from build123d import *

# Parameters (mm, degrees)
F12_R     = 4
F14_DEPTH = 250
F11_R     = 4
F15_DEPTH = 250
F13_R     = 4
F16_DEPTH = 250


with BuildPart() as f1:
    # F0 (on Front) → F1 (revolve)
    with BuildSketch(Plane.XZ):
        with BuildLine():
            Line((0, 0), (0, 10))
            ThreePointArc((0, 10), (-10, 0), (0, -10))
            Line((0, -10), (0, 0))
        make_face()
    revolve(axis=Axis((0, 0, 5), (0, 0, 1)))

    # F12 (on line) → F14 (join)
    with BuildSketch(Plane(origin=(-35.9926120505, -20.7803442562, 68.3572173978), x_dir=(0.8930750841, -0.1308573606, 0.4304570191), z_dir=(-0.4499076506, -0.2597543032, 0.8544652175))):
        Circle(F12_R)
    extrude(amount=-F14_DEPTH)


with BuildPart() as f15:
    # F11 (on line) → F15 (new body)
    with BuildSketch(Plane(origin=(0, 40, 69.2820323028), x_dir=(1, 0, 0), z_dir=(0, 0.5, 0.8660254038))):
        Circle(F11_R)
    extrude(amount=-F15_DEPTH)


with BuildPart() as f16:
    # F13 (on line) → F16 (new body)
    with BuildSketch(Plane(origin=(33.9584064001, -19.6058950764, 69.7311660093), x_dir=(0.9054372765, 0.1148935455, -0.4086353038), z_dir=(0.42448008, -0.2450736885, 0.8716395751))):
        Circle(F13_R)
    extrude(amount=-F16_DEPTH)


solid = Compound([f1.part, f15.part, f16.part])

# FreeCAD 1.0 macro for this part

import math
import FreeCAD as App
import Part
import Sketcher

V = App.Vector

doc = App.newDocument("Part")
body = doc.addObject("PartDesign::Body", "Body")

# Sketch on XZ plane
sketch1 = doc.addObject("Sketcher::SketchObject", "Sketch")
body.addObject(sketch1)
sketch1.AttachmentSupport = (doc.XZ_Plane, [""])
sketch1.MapMode = "FlatFace"
sketch1.addGeometry([
    Part.ArcOfCircle(Part.Circle(V(0, 0, 0), V(0, 0, 1), 10), math.radians(90), math.radians(270)),
    Part.LineSegment(V(0, -10, 0), V(0, 10, 0)),
], False)
sketch1.addConstraint([
    Sketcher.Constraint("Coincident", 0, 1, 1, 2),
    Sketcher.Constraint("Coincident", 1, 1, 0, 2),
    Sketcher.Constraint("Vertical", 1),
    Sketcher.Constraint("Coincident", 0, 3, -1, 1),
    Sketcher.Constraint("PointOnObject", 0, 1, -2),
    Sketcher.Constraint("Radius", 0, 10.0),
])
revolution = doc.addObject("PartDesign::Revolution", "Revolution")
body.addObject(revolution)
revolution.Profile = sketch1
revolution.ReferenceAxis = (sketch1, ["V_Axis"])
revolution.Angle = 360

# Sketch on an angled plane
sketch2 = doc.addObject("Sketcher::SketchObject", "Sketch001")
body.addObject(sketch2)
sketch2.Placement = App.Placement(V(-35.992612, -20.780344, 68.357217), App.Rotation(V(0.893075084, -0.130857361, 0.430457019), V(0, 0.956767502, 0.290853824), V(-0.449907651, -0.259754303, 0.854465217), "ZXY"))
sketch2.addGeometry(Part.Circle(V(0, 0, 0), V(0, 0, 1), 4), False)
sketch2.addConstraint([
    Sketcher.Constraint("Coincident", 0, 3, -1, 1),
    Sketcher.Constraint("Diameter", 0, 8.0),
])
pad1 = doc.addObject("PartDesign::Pad", "Pad")
body.addObject(pad1)
pad1.Profile = sketch2
pad1.Length = 250
pad1.Reversed = True
body2 = doc.addObject("PartDesign::Body", "Body001")

# Sketch on an angled plane
sketch3 = doc.addObject("Sketcher::SketchObject", "Sketch002")
body2.addObject(sketch3)
sketch3.Placement = App.Placement(V(0, 40, 69.282032), App.Rotation(V(1, 0, 0), V(0, 0.866025404, -0.5), V(0, 0.5, 0.866025404), "ZXY"))
sketch3.addGeometry(Part.Circle(V(0, 0, 0), V(0, 0, 1), 4), False)
sketch3.addConstraint([
    Sketcher.Constraint("Coincident", 0, 3, -1, 1),
    Sketcher.Constraint("Diameter", 0, 8.0),
])
pad2 = doc.addObject("PartDesign::Pad", "Pad001")
body2.addObject(pad2)
pad2.Profile = sketch3
pad2.Length = 250
pad2.Reversed = True
body3 = doc.addObject("PartDesign::Body", "Body002")

# Sketch on an angled plane
sketch4 = doc.addObject("Sketcher::SketchObject", "Sketch003")
body3.addObject(sketch4)
sketch4.Placement = App.Placement(V(33.958406, -19.605895, 69.731166), App.Rotation(V(0.905437277, 0.114893546, -0.408635304), V(0, 0.96267251, 0.270668875), V(0.42448008, -0.245073689, 0.871639575), "ZXY"))
sketch4.addGeometry(Part.Circle(V(0, 0, 0), V(0, 0, 1), 4), False)
sketch4.addConstraint([
    Sketcher.Constraint("Coincident", 0, 3, -1, 1),
    Sketcher.Constraint("Diameter", 0, 8.0),
])
pad3 = doc.addObject("PartDesign::Pad", "Pad002")
body3.addObject(pad3)
pad3.Profile = sketch4
pad3.Length = 250
pad3.Reversed = True

doc.recompute()
